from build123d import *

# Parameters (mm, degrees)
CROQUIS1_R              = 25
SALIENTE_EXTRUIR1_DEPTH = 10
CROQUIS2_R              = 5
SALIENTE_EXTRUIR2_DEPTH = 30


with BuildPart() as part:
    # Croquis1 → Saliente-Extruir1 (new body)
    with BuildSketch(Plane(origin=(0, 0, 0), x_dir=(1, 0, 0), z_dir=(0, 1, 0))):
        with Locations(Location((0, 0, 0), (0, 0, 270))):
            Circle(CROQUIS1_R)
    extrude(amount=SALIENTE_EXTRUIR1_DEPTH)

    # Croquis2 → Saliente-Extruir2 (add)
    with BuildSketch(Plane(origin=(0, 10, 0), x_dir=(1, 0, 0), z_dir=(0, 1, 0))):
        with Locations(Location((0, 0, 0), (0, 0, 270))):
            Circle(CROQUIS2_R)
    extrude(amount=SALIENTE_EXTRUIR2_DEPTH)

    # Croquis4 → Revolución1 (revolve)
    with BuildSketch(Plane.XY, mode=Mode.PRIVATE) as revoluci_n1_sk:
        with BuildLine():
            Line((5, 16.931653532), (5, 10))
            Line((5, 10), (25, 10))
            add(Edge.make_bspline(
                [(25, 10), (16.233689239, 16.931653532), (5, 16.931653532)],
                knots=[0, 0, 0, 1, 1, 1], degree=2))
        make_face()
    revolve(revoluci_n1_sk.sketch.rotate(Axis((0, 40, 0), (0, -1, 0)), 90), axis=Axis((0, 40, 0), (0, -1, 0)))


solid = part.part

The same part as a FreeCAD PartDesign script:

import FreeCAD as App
import Part
import Sketcher
from FreeCAD import Vector

doc = App.newDocument("Part")
body = doc.addObject("PartDesign::Body", "Body")

# Sketch on XZ plane
sketch1 = body.newObject("Sketcher::SketchObject", "Sketch")
sketch1.AttachmentSupport = (doc.getObject("XZ_Plane"), [""])
sketch1.MapMode = "FlatFace"
sketch1.addGeometry(Part.Circle(Vector(0, 0, 0), Vector(0, 0, 1), 25), False)
sketch1.addConstraint([
    Sketcher.Constraint("Coincident", 0, 3, -1, 1),
    Sketcher.Constraint("Diameter", 0, 50.0),
])
pad1 = body.newObject("PartDesign::Pad", "Pad")
pad1.Profile = sketch1
pad1.Length = 10
pad1.Reversed = True

# Sketch on XZ plane
sketch2 = body.newObject("Sketcher::SketchObject", "Sketch001")
sketch2.AttachmentSupport = (doc.getObject("XZ_Plane"), [""])
sketch2.MapMode = "FlatFace"
sketch2.AttachmentOffset = App.Placement(Vector(0, 0, -10), App.Rotation())
sketch2.addGeometry(Part.Circle(Vector(0, 0, 0), Vector(0, 0, 1), 5), False)
sketch2.addConstraint([
    Sketcher.Constraint("Coincident", 0, 3, -1, 1),
    Sketcher.Constraint("Diameter", 0, 10.0),
])
pad2 = body.newObject("PartDesign::Pad", "Pad001")
pad2.Profile = sketch2
pad2.Length = 30
pad2.Reversed = True

# Sketch on XY plane
sketch3 = body.newObject("Sketcher::SketchObject", "Sketch002")
sketch3.AttachmentSupport = (doc.getObject("XY_Plane"), [""])
sketch3.MapMode = "FlatFace"
sketch3.addGeometry([
    Part.LineSegment(Vector(5, 16.931654, 0), Vector(5, 10, 0)),
    Part.LineSegment(Vector(5, 10, 0), Vector(25, 10, 0)),
    Part.BSplineCurve([Vector(25, 10, 0), Vector(16.233689, 16.931654, 0), Vector(5, 16.931654, 0)], [3, 3], [0, 1], False, 2, [1, 1, 1], False),
], False)
sketch3.addConstraint([
    Sketcher.Constraint("Block", 2),
    Sketcher.Constraint("Coincident", 0, 2, 1, 1),
    Sketcher.Constraint("Coincident", 1, 2, 2, 1),
    Sketcher.Constraint("Coincident", 2, 2, 0, 1),
    Sketcher.Constraint("Vertical", 0),
    Sketcher.Constraint("Horizontal", 1),
])
revolution = body.newObject("PartDesign::Revolution", "Revolution")
revolution.Profile = sketch3
revolution.ReferenceAxis = (sketch3, ["V_Axis"])
revolution.Angle = 360

doc.recompute()
